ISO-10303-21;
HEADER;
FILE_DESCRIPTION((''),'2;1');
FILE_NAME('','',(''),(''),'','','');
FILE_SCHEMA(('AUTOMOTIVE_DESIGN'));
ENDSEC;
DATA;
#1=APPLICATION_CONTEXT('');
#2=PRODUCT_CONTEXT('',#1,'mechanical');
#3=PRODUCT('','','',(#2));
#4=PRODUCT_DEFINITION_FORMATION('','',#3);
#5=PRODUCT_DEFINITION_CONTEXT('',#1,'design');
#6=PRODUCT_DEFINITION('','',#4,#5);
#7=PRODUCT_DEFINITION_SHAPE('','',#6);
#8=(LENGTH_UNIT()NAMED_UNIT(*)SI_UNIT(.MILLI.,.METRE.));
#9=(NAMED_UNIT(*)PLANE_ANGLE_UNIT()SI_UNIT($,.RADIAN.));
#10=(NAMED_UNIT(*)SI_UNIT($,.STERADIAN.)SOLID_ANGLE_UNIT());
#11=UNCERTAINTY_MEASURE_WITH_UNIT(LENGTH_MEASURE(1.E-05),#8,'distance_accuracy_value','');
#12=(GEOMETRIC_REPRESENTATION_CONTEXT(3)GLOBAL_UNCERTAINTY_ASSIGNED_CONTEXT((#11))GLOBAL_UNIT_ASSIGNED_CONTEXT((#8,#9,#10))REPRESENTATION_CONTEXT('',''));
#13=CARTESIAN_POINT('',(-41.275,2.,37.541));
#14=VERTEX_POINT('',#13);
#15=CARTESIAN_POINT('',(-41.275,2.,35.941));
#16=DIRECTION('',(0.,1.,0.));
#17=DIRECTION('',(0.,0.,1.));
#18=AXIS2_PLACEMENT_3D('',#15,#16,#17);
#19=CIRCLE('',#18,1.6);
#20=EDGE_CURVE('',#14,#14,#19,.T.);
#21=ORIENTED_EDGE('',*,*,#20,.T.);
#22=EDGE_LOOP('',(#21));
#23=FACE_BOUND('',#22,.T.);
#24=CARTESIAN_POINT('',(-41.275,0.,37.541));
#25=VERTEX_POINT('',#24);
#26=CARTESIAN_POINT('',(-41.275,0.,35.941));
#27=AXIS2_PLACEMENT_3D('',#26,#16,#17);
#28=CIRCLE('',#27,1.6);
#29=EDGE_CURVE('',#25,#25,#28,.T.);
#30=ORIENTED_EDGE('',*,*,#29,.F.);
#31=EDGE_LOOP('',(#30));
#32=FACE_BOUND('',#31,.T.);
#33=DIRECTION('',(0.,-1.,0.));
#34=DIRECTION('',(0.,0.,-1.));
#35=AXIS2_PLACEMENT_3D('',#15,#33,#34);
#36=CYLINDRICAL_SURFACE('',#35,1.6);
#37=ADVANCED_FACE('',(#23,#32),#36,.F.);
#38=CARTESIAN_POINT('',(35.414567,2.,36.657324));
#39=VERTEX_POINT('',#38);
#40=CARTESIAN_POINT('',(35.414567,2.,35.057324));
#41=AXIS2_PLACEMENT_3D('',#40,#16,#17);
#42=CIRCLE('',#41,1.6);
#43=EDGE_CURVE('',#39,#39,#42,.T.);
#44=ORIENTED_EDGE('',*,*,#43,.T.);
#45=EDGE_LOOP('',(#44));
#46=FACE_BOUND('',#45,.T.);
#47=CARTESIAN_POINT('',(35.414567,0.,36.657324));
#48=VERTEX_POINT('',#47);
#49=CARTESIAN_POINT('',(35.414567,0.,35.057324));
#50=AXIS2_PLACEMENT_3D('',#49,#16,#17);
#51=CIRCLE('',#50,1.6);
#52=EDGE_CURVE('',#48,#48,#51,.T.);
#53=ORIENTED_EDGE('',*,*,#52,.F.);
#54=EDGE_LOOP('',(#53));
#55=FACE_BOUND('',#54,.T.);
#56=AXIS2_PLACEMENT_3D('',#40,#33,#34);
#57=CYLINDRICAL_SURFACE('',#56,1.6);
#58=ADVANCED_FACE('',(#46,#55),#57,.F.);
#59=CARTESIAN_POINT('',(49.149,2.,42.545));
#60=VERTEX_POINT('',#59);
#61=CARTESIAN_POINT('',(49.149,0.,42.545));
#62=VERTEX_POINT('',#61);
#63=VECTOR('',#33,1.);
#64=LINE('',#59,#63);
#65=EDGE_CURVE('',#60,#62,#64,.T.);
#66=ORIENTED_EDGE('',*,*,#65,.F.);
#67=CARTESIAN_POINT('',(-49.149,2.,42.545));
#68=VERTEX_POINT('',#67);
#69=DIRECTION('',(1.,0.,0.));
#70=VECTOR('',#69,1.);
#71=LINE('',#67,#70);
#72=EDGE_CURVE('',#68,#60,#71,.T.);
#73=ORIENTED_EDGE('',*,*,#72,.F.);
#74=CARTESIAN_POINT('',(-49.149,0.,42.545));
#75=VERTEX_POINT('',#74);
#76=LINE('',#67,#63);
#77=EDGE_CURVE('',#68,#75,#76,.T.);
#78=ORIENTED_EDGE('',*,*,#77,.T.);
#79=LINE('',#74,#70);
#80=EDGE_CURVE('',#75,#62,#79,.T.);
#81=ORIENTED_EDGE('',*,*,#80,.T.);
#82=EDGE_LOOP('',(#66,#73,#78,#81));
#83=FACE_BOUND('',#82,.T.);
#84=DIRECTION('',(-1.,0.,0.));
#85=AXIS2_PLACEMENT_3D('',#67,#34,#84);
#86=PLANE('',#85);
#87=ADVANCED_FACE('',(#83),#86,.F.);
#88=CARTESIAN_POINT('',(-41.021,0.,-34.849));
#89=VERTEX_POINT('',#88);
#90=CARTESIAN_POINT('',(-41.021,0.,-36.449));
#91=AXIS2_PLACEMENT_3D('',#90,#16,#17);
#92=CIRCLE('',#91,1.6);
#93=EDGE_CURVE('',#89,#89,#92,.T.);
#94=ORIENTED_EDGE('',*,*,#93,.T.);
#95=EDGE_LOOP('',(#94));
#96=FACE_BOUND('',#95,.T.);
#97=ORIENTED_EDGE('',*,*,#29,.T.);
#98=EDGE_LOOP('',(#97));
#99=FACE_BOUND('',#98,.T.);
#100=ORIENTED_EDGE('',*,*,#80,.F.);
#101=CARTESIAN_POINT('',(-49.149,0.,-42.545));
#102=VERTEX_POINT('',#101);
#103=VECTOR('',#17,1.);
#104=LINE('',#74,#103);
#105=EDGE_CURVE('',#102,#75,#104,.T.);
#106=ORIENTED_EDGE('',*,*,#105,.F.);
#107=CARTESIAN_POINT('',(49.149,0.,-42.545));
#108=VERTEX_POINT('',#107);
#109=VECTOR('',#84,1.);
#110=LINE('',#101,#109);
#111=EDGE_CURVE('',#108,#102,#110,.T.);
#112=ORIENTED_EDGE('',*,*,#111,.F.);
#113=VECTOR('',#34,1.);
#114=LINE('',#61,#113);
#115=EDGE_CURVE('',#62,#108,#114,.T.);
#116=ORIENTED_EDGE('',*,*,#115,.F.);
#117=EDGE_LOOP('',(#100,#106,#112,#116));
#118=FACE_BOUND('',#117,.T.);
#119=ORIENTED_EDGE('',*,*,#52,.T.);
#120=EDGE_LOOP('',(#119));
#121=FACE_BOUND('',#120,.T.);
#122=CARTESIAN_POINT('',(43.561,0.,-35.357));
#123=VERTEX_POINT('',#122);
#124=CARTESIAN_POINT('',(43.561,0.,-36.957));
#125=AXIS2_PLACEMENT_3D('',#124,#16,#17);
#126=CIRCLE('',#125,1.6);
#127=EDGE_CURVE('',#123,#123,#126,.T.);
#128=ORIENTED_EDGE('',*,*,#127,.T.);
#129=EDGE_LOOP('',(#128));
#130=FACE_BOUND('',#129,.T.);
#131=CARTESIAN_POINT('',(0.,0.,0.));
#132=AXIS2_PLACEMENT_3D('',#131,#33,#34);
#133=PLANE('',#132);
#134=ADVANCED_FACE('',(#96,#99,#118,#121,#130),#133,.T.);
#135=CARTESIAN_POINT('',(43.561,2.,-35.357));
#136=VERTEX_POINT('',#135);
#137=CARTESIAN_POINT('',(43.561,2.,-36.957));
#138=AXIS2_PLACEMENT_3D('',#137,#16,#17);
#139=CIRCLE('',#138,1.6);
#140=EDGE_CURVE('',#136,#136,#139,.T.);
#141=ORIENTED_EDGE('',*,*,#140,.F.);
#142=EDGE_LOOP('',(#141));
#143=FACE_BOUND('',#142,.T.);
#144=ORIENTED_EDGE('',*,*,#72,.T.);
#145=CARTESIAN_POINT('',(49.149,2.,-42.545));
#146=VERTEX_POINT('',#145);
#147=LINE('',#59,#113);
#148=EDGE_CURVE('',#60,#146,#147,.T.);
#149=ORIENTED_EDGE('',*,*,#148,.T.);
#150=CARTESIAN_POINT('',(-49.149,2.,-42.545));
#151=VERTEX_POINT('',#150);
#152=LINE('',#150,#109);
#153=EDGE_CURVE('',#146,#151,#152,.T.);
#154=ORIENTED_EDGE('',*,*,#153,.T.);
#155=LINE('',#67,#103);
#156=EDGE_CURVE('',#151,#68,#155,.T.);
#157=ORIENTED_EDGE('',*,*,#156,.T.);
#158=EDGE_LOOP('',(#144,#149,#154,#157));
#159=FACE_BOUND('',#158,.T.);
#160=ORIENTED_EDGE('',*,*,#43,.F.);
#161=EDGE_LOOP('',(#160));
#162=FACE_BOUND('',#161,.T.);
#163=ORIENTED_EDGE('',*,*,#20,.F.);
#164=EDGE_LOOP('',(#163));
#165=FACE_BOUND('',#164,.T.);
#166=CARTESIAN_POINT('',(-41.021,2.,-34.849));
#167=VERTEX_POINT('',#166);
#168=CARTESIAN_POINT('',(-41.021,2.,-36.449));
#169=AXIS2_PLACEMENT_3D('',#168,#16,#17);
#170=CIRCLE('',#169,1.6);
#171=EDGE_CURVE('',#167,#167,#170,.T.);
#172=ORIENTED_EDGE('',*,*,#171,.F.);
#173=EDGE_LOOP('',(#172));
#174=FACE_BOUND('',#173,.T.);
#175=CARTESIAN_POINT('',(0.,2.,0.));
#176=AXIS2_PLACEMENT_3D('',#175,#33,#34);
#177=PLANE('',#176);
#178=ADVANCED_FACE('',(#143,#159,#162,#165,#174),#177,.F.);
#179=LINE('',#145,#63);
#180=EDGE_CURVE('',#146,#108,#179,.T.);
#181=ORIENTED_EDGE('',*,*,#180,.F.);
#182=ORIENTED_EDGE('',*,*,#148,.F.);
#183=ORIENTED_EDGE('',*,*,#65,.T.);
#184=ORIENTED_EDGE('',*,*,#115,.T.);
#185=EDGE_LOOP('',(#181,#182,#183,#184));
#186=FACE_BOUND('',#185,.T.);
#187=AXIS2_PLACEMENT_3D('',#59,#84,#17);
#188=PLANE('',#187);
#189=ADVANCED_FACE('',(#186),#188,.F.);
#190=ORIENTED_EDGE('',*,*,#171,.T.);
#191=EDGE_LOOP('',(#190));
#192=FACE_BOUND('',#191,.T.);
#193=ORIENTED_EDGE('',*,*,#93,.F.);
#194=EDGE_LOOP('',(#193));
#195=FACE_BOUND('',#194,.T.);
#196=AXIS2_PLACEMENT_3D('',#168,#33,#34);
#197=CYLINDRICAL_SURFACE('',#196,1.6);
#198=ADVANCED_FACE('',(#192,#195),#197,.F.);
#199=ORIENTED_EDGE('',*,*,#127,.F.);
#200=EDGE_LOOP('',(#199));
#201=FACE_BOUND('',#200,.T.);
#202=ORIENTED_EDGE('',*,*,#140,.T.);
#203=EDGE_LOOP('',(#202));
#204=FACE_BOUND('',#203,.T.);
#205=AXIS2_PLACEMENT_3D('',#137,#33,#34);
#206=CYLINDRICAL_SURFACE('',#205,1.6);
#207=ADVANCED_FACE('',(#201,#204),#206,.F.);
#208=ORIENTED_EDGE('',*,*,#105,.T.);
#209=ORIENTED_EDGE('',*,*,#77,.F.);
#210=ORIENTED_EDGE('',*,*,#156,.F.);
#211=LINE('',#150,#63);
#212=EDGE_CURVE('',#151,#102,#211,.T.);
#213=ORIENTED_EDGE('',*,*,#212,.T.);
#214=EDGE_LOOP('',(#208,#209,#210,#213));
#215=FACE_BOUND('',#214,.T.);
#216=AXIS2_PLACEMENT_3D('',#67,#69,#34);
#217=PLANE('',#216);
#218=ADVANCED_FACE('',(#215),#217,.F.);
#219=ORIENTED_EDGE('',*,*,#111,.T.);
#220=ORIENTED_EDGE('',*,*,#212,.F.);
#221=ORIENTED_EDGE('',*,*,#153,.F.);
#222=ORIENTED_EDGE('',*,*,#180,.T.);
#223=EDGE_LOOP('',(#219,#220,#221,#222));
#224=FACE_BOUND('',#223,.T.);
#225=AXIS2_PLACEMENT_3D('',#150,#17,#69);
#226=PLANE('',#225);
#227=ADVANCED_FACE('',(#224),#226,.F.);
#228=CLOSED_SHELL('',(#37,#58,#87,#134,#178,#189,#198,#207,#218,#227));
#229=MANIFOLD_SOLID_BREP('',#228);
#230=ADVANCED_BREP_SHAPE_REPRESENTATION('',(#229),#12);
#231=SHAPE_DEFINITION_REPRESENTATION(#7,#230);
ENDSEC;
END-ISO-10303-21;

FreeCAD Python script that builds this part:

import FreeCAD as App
import Part
import Sketcher

V = App.Vector


def add_polygon(sketch, points):
    """Adds a closed chain of lines whose ends are joined by coincident constraints."""
    first, n = sketch.GeometryCount, len(points)
    for a, b in zip(points, points[1:] + points[:1]):
        sketch.addGeometry(Part.LineSegment(App.Vector(*a, 0), App.Vector(*b, 0)), False)
    for i in range(n):
        sketch.addConstraint(Sketcher.Constraint("Coincident", first + i, 2, first + (i + 1) % n, 1))

doc = App.newDocument("Part")
params = doc.addObject("Spreadsheet::Sheet", "Params")
for row, (alias, value) in enumerate([
    ("sketch1_diameter", "3.2 mm"),
    ("sketch1_height", "85.09 mm"),
    ("pad1_length", "2 mm"),
], start=1):
    params.set(f"A{row}", alias)
    params.set(f"B{row}", "=" + value)
    params.setAlias(f"B{row}", alias)

body = doc.addObject("PartDesign::Body", "Body")

# Sketch on XZ plane
sketch1 = body.newObject("Sketcher::SketchObject", "Sketch")
sketch1.AttachmentSupport = (doc.getObject("XZ_Plane"), [""])
sketch1.MapMode = "FlatFace"
add_polygon(sketch1, [(-49.149, -42.545), (-49.149, 42.545), (49.149, 42.545), (49.149, -42.545)])  # lines 0-3
sketch1.addGeometry(Part.Circle(V(-41.275, 35.941, 0), V(0, 0, 1), 1.6), False)  # 4
sketch1.addGeometry(Part.Circle(V(35.414567, 35.057324, 0), V(0, 0, 1), 1.6), False)  # 5
sketch1.addGeometry(Part.Circle(V(-41.021, -36.449, 0), V(0, 0, 1), 1.6), False)  # 6
sketch1.addGeometry(Part.Circle(V(43.561, -36.957, 0), V(0, 0, 1), 1.6), False)  # 7
sketch1.addConstraint(Sketcher.Constraint("Vertical", 0))
sketch1.addConstraint(Sketcher.Constraint("Horizontal", 1))
sketch1.addConstraint(Sketcher.Constraint("Vertical", 2))
sketch1.addConstraint(Sketcher.Constraint("Horizontal", 3))
sketch1.addConstraint(Sketcher.Constraint("Equal", 4, 5))
sketch1.addConstraint(Sketcher.Constraint("Equal", 5, 6))
sketch1.addConstraint(Sketcher.Constraint("Equal", 6, 7))
sketch1.addConstraint(Sketcher.Constraint("Symmetric", 0, 2, 2, 2, -1, 1))
sketch1.addConstraint(Sketcher.Constraint("Diameter", 4, 3.2))
sketch1.addConstraint(Sketcher.Constraint("DistanceY", 0, 1, 0, 2, 85.09))
sketch1.addConstraint(Sketcher.Constraint("DistanceX", 1, 1, 1, 2, 98.298))
sketch1.addConstraint(Sketcher.Constraint("DistanceY", 6, 3, 4, 3, 72.39))
sketch1.addConstraint(Sketcher.Constraint("DistanceX", 0, 2, 7, 3, 92.71))
sketch1.addConstraint(Sketcher.Constraint("DistanceX", 6, 3, 1, 2, 90.17))
sketch1.addConstraint(Sketcher.Constraint("DistanceX", 4, 3, -1, 1, 41.275))
sketch1.addConstraint(Sketcher.Constraint("DistanceY", -1, 1, 4, 3, 35.941))
sketch1.addConstraint(Sketcher.Constraint("DistanceY", 7, 3, -1, 1, 36.957))
sketch1.addConstraint(Sketcher.Constraint("DistanceX", -1, 1, 5, 3, 35.414567))
sketch1.addConstraint(Sketcher.Constraint("DistanceY", -1, 1, 5, 3, 35.057324))
sketch1.setExpression("Constraints[12]", "Params.sketch1_diameter")
sketch1.setExpression("Constraints[13]", "Params.sketch1_height")
pad1 = body.newObject("PartDesign::Pad", "Pad")
pad1.Profile = sketch1
pad1.setExpression("Length", "Params.pad1_length")
pad1.Reversed = True

doc.recompute()
